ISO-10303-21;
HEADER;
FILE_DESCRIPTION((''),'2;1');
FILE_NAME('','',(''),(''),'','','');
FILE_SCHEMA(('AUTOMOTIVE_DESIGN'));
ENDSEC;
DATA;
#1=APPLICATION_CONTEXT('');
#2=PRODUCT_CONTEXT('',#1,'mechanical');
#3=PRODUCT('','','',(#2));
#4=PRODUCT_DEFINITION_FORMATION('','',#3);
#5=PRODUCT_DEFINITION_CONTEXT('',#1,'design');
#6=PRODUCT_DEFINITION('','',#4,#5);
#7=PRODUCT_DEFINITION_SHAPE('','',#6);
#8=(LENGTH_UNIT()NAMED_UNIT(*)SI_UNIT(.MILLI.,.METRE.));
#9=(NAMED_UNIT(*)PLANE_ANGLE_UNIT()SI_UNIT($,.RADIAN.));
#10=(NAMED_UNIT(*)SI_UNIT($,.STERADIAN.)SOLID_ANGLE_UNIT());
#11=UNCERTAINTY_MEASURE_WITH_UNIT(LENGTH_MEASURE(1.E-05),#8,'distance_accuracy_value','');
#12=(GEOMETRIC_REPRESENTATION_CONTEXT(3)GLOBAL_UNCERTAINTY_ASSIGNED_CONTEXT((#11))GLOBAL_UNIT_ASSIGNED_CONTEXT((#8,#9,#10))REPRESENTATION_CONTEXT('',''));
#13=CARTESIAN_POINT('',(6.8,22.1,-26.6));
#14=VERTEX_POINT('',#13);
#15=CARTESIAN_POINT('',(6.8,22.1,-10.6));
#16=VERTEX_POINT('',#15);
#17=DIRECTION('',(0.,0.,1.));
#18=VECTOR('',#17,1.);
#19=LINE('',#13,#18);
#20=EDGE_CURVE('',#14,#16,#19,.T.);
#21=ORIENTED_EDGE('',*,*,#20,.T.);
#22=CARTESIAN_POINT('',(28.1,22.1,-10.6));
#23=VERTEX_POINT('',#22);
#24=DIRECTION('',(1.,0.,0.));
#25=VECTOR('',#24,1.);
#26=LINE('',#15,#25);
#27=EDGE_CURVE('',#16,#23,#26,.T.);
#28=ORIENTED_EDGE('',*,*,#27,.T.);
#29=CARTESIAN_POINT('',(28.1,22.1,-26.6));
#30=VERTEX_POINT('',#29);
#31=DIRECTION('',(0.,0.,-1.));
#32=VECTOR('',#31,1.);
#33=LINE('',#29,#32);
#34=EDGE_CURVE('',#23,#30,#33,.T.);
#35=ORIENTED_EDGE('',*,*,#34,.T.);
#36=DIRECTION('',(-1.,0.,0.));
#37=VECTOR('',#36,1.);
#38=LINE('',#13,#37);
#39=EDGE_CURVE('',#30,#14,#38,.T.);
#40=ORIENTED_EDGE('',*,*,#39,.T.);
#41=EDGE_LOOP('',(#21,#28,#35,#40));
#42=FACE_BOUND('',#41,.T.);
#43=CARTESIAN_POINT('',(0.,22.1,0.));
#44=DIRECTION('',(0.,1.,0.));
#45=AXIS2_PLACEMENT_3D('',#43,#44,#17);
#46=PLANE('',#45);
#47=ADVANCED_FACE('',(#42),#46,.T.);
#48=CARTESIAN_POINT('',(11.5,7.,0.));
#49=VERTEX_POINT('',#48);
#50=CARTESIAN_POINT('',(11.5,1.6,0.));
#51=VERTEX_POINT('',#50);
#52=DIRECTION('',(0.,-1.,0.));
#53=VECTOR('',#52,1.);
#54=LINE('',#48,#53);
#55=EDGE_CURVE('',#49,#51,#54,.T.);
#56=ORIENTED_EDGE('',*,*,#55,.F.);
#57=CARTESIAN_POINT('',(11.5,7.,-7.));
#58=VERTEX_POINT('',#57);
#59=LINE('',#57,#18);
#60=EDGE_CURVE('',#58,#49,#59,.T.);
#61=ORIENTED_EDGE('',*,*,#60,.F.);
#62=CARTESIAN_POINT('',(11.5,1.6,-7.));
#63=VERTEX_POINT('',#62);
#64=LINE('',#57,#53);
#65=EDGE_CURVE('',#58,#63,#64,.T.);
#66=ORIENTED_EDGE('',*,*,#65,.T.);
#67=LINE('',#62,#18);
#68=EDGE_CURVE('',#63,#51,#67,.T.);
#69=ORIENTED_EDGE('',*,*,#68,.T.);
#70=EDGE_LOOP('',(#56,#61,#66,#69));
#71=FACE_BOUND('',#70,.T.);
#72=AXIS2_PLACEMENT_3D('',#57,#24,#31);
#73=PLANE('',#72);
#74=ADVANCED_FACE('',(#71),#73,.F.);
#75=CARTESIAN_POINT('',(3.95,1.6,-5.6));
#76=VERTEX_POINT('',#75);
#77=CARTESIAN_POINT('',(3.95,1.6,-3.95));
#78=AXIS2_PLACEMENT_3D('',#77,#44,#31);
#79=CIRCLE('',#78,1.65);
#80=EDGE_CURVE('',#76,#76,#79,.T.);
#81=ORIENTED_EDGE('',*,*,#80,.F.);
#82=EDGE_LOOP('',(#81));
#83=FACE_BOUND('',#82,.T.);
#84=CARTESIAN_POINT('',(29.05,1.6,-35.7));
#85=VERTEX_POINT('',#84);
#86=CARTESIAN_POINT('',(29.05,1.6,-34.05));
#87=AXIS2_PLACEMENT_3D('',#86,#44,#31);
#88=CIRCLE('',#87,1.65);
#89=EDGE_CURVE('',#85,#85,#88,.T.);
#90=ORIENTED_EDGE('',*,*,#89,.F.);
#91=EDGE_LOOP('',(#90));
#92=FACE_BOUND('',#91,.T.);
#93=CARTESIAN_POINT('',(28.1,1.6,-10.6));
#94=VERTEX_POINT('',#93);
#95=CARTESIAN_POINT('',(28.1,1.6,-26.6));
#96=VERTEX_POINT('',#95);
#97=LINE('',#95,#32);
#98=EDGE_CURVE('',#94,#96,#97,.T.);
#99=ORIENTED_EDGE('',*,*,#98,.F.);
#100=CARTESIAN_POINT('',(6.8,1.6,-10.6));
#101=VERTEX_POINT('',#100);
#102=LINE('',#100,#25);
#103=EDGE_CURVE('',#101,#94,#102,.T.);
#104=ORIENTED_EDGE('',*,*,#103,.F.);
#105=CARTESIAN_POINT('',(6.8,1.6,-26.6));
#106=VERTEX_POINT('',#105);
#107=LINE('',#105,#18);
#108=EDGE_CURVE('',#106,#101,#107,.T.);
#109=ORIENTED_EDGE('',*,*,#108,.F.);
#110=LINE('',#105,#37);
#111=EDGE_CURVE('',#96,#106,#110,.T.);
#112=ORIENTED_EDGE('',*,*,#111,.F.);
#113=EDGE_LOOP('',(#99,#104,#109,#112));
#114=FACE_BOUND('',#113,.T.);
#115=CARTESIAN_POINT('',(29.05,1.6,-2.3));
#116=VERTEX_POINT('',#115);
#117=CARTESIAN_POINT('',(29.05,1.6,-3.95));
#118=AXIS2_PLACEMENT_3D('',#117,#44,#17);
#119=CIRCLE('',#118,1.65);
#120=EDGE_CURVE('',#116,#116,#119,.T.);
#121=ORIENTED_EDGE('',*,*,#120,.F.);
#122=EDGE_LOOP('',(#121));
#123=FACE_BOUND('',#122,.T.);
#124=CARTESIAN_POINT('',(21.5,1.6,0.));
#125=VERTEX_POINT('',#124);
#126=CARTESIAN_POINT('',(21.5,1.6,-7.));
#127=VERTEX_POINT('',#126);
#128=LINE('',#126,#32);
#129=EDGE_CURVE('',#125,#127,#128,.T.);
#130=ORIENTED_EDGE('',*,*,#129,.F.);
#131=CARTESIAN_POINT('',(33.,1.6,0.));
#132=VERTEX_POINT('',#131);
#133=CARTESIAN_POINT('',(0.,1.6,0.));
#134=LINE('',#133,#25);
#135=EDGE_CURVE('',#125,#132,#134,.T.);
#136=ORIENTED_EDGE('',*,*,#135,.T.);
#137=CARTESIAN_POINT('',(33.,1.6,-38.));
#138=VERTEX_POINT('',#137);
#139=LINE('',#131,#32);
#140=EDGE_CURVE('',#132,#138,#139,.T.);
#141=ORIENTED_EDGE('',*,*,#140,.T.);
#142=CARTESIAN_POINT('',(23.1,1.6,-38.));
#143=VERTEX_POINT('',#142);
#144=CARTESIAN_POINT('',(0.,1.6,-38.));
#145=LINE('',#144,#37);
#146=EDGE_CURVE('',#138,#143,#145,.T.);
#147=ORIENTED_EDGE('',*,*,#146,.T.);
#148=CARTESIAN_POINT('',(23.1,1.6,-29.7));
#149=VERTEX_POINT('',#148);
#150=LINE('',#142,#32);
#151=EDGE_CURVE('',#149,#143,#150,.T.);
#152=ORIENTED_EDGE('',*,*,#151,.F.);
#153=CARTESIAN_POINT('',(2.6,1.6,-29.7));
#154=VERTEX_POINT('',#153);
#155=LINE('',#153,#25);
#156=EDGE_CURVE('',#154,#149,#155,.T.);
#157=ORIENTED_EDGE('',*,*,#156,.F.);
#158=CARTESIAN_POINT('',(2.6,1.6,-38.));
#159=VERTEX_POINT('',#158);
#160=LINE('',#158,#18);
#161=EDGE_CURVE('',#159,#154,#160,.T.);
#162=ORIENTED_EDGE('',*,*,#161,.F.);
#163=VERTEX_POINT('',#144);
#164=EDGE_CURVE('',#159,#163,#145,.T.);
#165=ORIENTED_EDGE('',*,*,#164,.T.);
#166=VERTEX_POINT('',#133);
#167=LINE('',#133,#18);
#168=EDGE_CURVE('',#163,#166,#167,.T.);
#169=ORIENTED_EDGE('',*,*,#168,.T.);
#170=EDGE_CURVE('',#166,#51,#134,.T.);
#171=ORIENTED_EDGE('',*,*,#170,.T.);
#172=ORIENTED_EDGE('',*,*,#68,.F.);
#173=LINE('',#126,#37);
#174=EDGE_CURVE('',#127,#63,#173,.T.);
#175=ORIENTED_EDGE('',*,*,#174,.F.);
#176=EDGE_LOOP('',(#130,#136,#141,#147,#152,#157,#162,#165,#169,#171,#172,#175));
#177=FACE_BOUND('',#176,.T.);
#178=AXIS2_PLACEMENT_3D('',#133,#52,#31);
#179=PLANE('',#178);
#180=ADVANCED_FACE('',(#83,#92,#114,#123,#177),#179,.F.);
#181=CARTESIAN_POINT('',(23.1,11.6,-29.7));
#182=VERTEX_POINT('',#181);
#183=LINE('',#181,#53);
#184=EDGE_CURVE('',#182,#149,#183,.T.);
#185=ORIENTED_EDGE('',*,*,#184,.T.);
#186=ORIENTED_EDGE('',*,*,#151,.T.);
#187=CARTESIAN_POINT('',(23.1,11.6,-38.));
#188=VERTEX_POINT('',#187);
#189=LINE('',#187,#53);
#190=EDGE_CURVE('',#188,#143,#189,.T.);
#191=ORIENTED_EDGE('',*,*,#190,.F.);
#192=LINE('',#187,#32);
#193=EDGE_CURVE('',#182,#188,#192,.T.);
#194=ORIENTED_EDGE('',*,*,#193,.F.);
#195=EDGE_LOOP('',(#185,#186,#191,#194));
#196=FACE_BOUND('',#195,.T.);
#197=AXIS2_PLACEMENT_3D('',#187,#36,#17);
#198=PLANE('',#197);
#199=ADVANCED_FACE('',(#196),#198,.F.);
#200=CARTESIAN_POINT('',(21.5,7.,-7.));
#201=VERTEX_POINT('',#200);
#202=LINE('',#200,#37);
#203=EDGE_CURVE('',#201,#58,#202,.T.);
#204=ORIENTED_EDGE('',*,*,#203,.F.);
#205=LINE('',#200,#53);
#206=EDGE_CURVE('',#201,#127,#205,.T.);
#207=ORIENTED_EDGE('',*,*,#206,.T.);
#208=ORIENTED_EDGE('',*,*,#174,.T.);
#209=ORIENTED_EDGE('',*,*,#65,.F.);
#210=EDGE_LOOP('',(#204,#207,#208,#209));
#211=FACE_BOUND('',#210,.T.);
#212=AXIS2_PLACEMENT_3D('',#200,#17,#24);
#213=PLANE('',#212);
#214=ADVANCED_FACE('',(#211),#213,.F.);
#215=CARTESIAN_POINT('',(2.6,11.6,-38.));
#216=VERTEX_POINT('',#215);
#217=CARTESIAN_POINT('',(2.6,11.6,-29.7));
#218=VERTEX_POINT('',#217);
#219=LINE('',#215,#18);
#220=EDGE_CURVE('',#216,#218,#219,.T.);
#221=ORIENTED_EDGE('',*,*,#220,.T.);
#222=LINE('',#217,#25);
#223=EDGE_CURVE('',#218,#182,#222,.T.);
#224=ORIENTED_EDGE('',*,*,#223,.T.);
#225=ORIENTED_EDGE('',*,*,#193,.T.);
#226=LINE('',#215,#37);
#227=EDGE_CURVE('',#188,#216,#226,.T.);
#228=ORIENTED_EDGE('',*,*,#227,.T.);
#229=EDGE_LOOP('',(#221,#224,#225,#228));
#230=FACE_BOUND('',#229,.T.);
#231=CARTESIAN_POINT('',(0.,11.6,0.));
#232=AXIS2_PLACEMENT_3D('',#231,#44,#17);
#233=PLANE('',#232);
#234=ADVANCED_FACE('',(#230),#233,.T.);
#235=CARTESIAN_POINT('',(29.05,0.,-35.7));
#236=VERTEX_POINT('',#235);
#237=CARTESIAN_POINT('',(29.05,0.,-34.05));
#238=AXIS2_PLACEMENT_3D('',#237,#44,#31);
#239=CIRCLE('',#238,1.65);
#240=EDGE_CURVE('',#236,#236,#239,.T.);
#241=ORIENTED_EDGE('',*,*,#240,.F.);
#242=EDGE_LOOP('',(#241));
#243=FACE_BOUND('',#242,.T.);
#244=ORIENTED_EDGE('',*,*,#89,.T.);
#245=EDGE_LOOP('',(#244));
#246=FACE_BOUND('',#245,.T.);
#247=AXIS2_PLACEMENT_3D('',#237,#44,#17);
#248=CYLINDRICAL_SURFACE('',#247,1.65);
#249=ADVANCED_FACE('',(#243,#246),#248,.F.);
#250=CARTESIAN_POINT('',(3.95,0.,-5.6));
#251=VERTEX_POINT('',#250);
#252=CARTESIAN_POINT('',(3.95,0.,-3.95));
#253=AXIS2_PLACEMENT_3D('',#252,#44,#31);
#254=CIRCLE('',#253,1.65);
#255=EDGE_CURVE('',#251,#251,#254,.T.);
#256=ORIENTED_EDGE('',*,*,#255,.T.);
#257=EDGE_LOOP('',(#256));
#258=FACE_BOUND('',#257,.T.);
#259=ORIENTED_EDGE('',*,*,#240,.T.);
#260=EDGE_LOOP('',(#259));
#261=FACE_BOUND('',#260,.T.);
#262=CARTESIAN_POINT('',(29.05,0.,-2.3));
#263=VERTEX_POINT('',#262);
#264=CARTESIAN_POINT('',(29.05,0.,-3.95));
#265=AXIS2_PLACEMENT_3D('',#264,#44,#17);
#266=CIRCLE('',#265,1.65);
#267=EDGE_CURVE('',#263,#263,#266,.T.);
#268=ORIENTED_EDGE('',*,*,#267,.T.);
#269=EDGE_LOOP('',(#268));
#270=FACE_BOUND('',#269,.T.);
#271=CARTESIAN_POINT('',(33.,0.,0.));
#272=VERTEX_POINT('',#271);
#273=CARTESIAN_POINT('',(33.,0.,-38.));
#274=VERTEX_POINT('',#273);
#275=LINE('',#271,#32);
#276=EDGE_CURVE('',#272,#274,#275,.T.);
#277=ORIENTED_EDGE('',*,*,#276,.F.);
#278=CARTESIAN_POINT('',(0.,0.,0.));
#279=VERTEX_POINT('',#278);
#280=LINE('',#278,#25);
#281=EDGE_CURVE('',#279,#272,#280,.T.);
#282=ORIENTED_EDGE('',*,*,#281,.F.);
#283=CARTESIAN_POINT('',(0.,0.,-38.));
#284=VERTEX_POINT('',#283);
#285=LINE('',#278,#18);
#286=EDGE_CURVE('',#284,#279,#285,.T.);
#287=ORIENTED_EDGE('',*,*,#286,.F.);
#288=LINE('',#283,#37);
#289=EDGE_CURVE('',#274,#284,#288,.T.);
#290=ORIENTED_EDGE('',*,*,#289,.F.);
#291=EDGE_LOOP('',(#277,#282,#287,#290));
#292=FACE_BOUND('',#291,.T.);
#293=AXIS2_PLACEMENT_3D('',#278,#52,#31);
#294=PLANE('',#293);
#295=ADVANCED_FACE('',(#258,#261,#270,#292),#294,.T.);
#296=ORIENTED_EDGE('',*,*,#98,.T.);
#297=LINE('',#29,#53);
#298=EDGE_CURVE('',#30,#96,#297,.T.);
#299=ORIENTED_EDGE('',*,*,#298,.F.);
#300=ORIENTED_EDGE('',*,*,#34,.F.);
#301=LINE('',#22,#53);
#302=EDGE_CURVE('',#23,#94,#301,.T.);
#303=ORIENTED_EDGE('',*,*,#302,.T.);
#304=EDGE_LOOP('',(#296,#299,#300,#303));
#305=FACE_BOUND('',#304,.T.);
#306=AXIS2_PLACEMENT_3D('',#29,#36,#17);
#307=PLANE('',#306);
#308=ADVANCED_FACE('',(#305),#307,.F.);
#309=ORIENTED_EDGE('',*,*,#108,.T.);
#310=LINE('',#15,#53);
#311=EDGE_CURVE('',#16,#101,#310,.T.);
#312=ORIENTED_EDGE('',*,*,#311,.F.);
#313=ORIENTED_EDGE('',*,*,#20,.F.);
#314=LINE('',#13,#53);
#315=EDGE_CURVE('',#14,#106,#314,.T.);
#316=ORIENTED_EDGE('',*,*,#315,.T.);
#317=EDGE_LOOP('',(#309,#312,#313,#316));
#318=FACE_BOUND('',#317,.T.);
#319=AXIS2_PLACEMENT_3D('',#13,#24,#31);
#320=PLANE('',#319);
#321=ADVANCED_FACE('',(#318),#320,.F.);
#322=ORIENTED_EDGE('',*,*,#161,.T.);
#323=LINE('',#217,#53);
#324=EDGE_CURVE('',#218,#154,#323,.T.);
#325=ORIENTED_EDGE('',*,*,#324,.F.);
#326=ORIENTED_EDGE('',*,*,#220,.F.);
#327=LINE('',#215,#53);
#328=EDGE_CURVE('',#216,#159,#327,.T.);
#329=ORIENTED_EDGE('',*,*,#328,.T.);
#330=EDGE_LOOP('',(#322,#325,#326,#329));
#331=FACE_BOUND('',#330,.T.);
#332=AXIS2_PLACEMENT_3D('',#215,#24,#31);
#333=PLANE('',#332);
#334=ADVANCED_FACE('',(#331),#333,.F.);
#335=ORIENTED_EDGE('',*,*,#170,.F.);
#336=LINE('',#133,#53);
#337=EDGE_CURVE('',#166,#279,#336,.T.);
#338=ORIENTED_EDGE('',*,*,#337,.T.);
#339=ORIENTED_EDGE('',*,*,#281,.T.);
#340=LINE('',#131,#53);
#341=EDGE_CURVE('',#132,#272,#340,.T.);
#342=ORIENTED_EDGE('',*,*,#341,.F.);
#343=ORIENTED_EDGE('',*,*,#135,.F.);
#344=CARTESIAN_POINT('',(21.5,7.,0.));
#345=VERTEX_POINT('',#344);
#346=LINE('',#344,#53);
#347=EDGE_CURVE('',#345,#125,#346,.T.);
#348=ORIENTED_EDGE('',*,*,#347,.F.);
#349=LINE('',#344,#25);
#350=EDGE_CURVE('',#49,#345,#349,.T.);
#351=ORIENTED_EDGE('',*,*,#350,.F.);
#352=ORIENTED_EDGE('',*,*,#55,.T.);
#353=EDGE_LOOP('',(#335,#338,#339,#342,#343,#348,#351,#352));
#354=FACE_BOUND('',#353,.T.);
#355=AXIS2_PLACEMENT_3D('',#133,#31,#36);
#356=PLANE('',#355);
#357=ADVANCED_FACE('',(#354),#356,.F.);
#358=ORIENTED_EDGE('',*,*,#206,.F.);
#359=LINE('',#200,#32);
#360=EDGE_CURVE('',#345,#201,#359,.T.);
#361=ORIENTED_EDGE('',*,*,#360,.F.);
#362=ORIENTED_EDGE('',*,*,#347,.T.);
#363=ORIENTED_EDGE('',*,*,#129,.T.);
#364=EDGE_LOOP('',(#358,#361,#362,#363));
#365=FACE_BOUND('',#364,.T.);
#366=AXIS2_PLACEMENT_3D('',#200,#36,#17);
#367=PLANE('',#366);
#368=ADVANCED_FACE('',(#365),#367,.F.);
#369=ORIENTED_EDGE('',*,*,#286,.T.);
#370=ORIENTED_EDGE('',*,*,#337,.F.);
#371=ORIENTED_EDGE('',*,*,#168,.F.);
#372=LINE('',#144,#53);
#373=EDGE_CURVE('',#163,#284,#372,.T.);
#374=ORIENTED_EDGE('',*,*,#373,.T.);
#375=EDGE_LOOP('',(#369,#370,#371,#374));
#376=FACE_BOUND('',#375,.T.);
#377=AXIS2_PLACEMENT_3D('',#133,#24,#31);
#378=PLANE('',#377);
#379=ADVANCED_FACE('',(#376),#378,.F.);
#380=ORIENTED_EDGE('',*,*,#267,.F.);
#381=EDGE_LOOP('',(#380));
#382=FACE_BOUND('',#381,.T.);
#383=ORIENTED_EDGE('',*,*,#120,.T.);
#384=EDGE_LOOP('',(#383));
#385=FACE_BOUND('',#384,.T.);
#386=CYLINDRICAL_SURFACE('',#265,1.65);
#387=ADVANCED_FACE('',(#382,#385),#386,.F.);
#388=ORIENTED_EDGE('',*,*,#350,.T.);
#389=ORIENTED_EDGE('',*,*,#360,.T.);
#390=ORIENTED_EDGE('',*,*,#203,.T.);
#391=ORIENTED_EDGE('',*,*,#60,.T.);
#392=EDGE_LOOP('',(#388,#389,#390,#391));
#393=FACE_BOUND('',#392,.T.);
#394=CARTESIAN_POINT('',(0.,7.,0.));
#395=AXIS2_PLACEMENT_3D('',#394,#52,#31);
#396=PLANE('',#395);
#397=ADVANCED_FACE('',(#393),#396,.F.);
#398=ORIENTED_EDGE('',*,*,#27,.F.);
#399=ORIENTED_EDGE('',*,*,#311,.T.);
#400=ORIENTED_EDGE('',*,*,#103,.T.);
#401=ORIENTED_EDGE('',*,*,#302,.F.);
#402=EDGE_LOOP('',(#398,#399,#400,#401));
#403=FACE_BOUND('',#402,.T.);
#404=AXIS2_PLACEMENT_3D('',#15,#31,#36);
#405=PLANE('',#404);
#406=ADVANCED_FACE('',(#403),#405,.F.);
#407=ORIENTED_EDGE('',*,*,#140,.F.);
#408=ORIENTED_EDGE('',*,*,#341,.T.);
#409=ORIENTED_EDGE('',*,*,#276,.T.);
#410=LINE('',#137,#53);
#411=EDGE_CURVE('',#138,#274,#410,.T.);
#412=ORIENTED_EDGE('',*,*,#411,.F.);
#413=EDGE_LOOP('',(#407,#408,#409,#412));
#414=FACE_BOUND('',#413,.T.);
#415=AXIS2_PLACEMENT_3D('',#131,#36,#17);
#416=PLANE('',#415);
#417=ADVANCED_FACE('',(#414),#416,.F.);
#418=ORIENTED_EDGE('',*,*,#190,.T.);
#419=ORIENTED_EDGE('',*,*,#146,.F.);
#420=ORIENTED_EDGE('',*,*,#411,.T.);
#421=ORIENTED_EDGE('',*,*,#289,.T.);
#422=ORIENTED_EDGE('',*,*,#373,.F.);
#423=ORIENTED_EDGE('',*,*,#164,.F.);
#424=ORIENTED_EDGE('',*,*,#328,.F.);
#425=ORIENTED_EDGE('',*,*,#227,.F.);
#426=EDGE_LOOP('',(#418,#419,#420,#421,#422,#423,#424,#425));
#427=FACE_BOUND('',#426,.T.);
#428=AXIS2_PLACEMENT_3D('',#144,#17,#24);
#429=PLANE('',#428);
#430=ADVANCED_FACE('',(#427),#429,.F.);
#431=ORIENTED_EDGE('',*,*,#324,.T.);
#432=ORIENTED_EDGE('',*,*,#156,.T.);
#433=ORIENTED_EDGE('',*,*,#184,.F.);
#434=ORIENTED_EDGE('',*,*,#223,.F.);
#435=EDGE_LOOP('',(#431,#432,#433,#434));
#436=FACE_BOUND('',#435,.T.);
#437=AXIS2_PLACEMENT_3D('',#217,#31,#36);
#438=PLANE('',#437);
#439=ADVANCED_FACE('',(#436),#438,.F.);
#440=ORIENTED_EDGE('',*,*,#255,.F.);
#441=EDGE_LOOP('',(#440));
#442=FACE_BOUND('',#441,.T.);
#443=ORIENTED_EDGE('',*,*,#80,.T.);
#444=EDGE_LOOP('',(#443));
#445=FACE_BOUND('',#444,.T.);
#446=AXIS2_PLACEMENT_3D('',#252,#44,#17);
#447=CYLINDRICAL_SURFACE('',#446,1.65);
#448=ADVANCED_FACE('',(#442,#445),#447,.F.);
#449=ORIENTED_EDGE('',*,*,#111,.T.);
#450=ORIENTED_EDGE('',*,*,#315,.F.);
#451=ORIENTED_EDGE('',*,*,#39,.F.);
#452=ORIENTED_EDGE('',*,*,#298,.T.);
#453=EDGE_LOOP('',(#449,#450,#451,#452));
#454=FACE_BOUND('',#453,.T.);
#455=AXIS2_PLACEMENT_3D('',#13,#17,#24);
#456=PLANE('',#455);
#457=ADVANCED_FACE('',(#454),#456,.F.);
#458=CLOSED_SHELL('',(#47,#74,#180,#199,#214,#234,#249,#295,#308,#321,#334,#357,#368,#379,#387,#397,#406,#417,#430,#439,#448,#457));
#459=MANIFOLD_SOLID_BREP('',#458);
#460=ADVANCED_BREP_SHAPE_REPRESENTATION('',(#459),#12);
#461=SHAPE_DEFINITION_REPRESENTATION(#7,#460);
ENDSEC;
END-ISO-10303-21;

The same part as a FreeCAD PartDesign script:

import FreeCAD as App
import Part
import Sketcher
from FreeCAD import Vector
Q = App.Units.Quantity


def add_polygon(sketch, points):
    """Adds a closed chain of lines whose ends are joined by coincident constraints."""
    first, n = sketch.GeometryCount, len(points)
    for a, b in zip(points, points[1:] + points[:1]):
        sketch.addGeometry(Part.LineSegment(App.Vector(*a, 0), App.Vector(*b, 0)), False)
    for i in range(n):
        sketch.addConstraint(Sketcher.Constraint("Coincident", first + i, 2, first + (i + 1) % n, 1))

doc = App.newDocument("Part")
body = doc.addObject("PartDesign::Body", "Body")

sketch1 = doc.addObject("Sketcher::SketchObject", "Sketch")
body.addObject(sketch1)
sketch1.AttachmentSupport = (doc.XZ_Plane, [""])
sketch1.MapMode = "FlatFace"
add_polygon(sketch1, [(0, -38), (0, 0), (33, 0), (33, -38)])
sketch1.addConstraint([
    Sketcher.Constraint("Vertical", 0),
    Sketcher.Constraint("Horizontal", 1),
    Sketcher.Constraint("Vertical", 2),
    Sketcher.Constraint("Horizontal", 3),
    Sketcher.Constraint("Coincident", 0, 2, -1, 1),
    Sketcher.Constraint("DistanceX", 1, 1, 1, 2, Q("33 mm")),
    Sketcher.Constraint("DistanceY", 0, 1, 0, 2, Q("38 mm")),
])
pad1 = doc.addObject("PartDesign::Pad", "Pad")
body.addObject(pad1)
pad1.Profile = sketch1
pad1.Length = 1.6
pad1.Reversed = True

sketch2 = doc.addObject("Sketcher::SketchObject", "Sketch001")
body.addObject(sketch2)
sketch2.AttachmentSupport = (doc.XZ_Plane, [""])
sketch2.MapMode = "FlatFace"
sketch2.AttachmentOffset = App.Placement(Vector(0, 0, -1.6), App.Rotation())
sketch2.addGeometry([
    Part.Circle(Vector(29.1, -4, 0), Vector(0, 0, 1), 1.6),
    Part.Circle(Vector(4, -4, 0), Vector(0, 0, 1), 1.6),
    Part.Circle(Vector(29.1, -34, 0), Vector(0, 0, 1), 1.6),
], False)
sketch2.addConstraint([
    Sketcher.Constraint("Equal", 0, 1),
    Sketcher.Constraint("Equal", 1, 2),
    Sketcher.Constraint("Horizontal", 0, 3, 1, 3),
    Sketcher.Constraint("Vertical", 0, 3, 2, 3),
    Sketcher.Constraint("Diameter", 0, Q("3.3 mm")),
    Sketcher.Constraint("DistanceX", 1, 3, 0, 3, Q("25.1 mm")),
    Sketcher.Constraint("DistanceY", 2, 3, 0, 3, Q("30.1 mm")),
    Sketcher.Constraint("DistanceX", -1, 1, 0, 3, Q("29.05 mm")),
    Sketcher.Constraint("DistanceY", 0, 3, -1, 1, Q("3.95 mm")),
])
pocket1 = doc.addObject("PartDesign::Pocket", "Pocket")
body.addObject(pocket1)
pocket1.Profile = sketch2
pocket1.Length = 1.6
pocket1.Reversed = True

sketch3 = doc.addObject("Sketcher::SketchObject", "Sketch002")
body.addObject(sketch3)
sketch3.AttachmentSupport = (doc.XZ_Plane, [""])
sketch3.MapMode = "FlatFace"
sketch3.AttachmentOffset = App.Placement(Vector(0, 0, -1.6), App.Rotation())
add_polygon(sketch3, [(12, -7), (12, 0), (22, 0), (22, -7)])
sketch3.addConstraint([
    Sketcher.Constraint("Vertical", 0),
    Sketcher.Constraint("Horizontal", 1),
    Sketcher.Constraint("Vertical", 2),
    Sketcher.Constraint("Horizontal", 3),
    Sketcher.Constraint("PointOnObject", 0, 2, -1),
    Sketcher.Constraint("DistanceX", 1, 1, 1, 2, Q("10 mm")),
    Sketcher.Constraint("DistanceY", 0, 1, 0, 2, Q("7 mm")),
    Sketcher.Constraint("DistanceX", -1, 1, 0, 2, Q("11.5 mm")),
])
pad2 = doc.addObject("PartDesign::Pad", "Pad001")
body.addObject(pad2)
pad2.Profile = sketch3
pad2.Length = 5.4
pad2.Reversed = True

sketch4 = doc.addObject("Sketcher::SketchObject", "Sketch003")
body.addObject(sketch4)
sketch4.AttachmentSupport = (doc.XZ_Plane, [""])
sketch4.MapMode = "FlatFace"
sketch4.AttachmentOffset = App.Placement(Vector(0, 0, -1.6), App.Rotation())
add_polygon(sketch4, [(7, -27), (7, -11), (28, -11), (28, -27)])
sketch4.addConstraint([
    Sketcher.Constraint("Vertical", 0),
    Sketcher.Constraint("Horizontal", 1),
    Sketcher.Constraint("Vertical", 2),
    Sketcher.Constraint("Horizontal", 3),
    Sketcher.Constraint("DistanceY", 0, 1, 0, 2, Q("16 mm")),
    Sketcher.Constraint("DistanceX", 1, 1, 1, 2, Q("21.3 mm")),
    Sketcher.Constraint("DistanceX", -1, 1, 0, 2, Q("6.8 mm")),
    Sketcher.Constraint("DistanceY", 0, 2, -1, 1, Q("10.6 mm")),
])
pad3 = doc.addObject("PartDesign::Pad", "Pad002")
body.addObject(pad3)
pad3.Profile = sketch4
pad3.Length = 20.5
pad3.Reversed = True

sketch5 = doc.addObject("Sketcher::SketchObject", "Sketch004")
body.addObject(sketch5)
sketch5.AttachmentSupport = (doc.XZ_Plane, [""])
sketch5.MapMode = "FlatFace"
sketch5.AttachmentOffset = App.Placement(Vector(0, 0, -1.6), App.Rotation())
add_polygon(sketch5, [(3, -38), (3, -30), (23, -30), (23, -38)])
sketch5.addConstraint([
    Sketcher.Constraint("Vertical", 0),
    Sketcher.Constraint("Horizontal", 1),
    Sketcher.Constraint("Vertical", 2),
    Sketcher.Constraint("Horizontal", 3),
    Sketcher.Constraint("DistanceX", 1, 1, 1, 2, Q("20.5 mm")),
    Sketcher.Constraint("DistanceY", 0, 1, 0, 2, Q("8.3 mm")),
    Sketcher.Constraint("DistanceY", 2, 2, -1, 1, Q("38 mm")),
    Sketcher.Constraint("DistanceX", -1, 1, 0, 2, Q("2.6 mm")),
])
pad4 = doc.addObject("PartDesign::Pad", "Pad003")
body.addObject(pad4)
pad4.Profile = sketch5
pad4.Length = 10
pad4.Reversed = True

doc.recompute()
